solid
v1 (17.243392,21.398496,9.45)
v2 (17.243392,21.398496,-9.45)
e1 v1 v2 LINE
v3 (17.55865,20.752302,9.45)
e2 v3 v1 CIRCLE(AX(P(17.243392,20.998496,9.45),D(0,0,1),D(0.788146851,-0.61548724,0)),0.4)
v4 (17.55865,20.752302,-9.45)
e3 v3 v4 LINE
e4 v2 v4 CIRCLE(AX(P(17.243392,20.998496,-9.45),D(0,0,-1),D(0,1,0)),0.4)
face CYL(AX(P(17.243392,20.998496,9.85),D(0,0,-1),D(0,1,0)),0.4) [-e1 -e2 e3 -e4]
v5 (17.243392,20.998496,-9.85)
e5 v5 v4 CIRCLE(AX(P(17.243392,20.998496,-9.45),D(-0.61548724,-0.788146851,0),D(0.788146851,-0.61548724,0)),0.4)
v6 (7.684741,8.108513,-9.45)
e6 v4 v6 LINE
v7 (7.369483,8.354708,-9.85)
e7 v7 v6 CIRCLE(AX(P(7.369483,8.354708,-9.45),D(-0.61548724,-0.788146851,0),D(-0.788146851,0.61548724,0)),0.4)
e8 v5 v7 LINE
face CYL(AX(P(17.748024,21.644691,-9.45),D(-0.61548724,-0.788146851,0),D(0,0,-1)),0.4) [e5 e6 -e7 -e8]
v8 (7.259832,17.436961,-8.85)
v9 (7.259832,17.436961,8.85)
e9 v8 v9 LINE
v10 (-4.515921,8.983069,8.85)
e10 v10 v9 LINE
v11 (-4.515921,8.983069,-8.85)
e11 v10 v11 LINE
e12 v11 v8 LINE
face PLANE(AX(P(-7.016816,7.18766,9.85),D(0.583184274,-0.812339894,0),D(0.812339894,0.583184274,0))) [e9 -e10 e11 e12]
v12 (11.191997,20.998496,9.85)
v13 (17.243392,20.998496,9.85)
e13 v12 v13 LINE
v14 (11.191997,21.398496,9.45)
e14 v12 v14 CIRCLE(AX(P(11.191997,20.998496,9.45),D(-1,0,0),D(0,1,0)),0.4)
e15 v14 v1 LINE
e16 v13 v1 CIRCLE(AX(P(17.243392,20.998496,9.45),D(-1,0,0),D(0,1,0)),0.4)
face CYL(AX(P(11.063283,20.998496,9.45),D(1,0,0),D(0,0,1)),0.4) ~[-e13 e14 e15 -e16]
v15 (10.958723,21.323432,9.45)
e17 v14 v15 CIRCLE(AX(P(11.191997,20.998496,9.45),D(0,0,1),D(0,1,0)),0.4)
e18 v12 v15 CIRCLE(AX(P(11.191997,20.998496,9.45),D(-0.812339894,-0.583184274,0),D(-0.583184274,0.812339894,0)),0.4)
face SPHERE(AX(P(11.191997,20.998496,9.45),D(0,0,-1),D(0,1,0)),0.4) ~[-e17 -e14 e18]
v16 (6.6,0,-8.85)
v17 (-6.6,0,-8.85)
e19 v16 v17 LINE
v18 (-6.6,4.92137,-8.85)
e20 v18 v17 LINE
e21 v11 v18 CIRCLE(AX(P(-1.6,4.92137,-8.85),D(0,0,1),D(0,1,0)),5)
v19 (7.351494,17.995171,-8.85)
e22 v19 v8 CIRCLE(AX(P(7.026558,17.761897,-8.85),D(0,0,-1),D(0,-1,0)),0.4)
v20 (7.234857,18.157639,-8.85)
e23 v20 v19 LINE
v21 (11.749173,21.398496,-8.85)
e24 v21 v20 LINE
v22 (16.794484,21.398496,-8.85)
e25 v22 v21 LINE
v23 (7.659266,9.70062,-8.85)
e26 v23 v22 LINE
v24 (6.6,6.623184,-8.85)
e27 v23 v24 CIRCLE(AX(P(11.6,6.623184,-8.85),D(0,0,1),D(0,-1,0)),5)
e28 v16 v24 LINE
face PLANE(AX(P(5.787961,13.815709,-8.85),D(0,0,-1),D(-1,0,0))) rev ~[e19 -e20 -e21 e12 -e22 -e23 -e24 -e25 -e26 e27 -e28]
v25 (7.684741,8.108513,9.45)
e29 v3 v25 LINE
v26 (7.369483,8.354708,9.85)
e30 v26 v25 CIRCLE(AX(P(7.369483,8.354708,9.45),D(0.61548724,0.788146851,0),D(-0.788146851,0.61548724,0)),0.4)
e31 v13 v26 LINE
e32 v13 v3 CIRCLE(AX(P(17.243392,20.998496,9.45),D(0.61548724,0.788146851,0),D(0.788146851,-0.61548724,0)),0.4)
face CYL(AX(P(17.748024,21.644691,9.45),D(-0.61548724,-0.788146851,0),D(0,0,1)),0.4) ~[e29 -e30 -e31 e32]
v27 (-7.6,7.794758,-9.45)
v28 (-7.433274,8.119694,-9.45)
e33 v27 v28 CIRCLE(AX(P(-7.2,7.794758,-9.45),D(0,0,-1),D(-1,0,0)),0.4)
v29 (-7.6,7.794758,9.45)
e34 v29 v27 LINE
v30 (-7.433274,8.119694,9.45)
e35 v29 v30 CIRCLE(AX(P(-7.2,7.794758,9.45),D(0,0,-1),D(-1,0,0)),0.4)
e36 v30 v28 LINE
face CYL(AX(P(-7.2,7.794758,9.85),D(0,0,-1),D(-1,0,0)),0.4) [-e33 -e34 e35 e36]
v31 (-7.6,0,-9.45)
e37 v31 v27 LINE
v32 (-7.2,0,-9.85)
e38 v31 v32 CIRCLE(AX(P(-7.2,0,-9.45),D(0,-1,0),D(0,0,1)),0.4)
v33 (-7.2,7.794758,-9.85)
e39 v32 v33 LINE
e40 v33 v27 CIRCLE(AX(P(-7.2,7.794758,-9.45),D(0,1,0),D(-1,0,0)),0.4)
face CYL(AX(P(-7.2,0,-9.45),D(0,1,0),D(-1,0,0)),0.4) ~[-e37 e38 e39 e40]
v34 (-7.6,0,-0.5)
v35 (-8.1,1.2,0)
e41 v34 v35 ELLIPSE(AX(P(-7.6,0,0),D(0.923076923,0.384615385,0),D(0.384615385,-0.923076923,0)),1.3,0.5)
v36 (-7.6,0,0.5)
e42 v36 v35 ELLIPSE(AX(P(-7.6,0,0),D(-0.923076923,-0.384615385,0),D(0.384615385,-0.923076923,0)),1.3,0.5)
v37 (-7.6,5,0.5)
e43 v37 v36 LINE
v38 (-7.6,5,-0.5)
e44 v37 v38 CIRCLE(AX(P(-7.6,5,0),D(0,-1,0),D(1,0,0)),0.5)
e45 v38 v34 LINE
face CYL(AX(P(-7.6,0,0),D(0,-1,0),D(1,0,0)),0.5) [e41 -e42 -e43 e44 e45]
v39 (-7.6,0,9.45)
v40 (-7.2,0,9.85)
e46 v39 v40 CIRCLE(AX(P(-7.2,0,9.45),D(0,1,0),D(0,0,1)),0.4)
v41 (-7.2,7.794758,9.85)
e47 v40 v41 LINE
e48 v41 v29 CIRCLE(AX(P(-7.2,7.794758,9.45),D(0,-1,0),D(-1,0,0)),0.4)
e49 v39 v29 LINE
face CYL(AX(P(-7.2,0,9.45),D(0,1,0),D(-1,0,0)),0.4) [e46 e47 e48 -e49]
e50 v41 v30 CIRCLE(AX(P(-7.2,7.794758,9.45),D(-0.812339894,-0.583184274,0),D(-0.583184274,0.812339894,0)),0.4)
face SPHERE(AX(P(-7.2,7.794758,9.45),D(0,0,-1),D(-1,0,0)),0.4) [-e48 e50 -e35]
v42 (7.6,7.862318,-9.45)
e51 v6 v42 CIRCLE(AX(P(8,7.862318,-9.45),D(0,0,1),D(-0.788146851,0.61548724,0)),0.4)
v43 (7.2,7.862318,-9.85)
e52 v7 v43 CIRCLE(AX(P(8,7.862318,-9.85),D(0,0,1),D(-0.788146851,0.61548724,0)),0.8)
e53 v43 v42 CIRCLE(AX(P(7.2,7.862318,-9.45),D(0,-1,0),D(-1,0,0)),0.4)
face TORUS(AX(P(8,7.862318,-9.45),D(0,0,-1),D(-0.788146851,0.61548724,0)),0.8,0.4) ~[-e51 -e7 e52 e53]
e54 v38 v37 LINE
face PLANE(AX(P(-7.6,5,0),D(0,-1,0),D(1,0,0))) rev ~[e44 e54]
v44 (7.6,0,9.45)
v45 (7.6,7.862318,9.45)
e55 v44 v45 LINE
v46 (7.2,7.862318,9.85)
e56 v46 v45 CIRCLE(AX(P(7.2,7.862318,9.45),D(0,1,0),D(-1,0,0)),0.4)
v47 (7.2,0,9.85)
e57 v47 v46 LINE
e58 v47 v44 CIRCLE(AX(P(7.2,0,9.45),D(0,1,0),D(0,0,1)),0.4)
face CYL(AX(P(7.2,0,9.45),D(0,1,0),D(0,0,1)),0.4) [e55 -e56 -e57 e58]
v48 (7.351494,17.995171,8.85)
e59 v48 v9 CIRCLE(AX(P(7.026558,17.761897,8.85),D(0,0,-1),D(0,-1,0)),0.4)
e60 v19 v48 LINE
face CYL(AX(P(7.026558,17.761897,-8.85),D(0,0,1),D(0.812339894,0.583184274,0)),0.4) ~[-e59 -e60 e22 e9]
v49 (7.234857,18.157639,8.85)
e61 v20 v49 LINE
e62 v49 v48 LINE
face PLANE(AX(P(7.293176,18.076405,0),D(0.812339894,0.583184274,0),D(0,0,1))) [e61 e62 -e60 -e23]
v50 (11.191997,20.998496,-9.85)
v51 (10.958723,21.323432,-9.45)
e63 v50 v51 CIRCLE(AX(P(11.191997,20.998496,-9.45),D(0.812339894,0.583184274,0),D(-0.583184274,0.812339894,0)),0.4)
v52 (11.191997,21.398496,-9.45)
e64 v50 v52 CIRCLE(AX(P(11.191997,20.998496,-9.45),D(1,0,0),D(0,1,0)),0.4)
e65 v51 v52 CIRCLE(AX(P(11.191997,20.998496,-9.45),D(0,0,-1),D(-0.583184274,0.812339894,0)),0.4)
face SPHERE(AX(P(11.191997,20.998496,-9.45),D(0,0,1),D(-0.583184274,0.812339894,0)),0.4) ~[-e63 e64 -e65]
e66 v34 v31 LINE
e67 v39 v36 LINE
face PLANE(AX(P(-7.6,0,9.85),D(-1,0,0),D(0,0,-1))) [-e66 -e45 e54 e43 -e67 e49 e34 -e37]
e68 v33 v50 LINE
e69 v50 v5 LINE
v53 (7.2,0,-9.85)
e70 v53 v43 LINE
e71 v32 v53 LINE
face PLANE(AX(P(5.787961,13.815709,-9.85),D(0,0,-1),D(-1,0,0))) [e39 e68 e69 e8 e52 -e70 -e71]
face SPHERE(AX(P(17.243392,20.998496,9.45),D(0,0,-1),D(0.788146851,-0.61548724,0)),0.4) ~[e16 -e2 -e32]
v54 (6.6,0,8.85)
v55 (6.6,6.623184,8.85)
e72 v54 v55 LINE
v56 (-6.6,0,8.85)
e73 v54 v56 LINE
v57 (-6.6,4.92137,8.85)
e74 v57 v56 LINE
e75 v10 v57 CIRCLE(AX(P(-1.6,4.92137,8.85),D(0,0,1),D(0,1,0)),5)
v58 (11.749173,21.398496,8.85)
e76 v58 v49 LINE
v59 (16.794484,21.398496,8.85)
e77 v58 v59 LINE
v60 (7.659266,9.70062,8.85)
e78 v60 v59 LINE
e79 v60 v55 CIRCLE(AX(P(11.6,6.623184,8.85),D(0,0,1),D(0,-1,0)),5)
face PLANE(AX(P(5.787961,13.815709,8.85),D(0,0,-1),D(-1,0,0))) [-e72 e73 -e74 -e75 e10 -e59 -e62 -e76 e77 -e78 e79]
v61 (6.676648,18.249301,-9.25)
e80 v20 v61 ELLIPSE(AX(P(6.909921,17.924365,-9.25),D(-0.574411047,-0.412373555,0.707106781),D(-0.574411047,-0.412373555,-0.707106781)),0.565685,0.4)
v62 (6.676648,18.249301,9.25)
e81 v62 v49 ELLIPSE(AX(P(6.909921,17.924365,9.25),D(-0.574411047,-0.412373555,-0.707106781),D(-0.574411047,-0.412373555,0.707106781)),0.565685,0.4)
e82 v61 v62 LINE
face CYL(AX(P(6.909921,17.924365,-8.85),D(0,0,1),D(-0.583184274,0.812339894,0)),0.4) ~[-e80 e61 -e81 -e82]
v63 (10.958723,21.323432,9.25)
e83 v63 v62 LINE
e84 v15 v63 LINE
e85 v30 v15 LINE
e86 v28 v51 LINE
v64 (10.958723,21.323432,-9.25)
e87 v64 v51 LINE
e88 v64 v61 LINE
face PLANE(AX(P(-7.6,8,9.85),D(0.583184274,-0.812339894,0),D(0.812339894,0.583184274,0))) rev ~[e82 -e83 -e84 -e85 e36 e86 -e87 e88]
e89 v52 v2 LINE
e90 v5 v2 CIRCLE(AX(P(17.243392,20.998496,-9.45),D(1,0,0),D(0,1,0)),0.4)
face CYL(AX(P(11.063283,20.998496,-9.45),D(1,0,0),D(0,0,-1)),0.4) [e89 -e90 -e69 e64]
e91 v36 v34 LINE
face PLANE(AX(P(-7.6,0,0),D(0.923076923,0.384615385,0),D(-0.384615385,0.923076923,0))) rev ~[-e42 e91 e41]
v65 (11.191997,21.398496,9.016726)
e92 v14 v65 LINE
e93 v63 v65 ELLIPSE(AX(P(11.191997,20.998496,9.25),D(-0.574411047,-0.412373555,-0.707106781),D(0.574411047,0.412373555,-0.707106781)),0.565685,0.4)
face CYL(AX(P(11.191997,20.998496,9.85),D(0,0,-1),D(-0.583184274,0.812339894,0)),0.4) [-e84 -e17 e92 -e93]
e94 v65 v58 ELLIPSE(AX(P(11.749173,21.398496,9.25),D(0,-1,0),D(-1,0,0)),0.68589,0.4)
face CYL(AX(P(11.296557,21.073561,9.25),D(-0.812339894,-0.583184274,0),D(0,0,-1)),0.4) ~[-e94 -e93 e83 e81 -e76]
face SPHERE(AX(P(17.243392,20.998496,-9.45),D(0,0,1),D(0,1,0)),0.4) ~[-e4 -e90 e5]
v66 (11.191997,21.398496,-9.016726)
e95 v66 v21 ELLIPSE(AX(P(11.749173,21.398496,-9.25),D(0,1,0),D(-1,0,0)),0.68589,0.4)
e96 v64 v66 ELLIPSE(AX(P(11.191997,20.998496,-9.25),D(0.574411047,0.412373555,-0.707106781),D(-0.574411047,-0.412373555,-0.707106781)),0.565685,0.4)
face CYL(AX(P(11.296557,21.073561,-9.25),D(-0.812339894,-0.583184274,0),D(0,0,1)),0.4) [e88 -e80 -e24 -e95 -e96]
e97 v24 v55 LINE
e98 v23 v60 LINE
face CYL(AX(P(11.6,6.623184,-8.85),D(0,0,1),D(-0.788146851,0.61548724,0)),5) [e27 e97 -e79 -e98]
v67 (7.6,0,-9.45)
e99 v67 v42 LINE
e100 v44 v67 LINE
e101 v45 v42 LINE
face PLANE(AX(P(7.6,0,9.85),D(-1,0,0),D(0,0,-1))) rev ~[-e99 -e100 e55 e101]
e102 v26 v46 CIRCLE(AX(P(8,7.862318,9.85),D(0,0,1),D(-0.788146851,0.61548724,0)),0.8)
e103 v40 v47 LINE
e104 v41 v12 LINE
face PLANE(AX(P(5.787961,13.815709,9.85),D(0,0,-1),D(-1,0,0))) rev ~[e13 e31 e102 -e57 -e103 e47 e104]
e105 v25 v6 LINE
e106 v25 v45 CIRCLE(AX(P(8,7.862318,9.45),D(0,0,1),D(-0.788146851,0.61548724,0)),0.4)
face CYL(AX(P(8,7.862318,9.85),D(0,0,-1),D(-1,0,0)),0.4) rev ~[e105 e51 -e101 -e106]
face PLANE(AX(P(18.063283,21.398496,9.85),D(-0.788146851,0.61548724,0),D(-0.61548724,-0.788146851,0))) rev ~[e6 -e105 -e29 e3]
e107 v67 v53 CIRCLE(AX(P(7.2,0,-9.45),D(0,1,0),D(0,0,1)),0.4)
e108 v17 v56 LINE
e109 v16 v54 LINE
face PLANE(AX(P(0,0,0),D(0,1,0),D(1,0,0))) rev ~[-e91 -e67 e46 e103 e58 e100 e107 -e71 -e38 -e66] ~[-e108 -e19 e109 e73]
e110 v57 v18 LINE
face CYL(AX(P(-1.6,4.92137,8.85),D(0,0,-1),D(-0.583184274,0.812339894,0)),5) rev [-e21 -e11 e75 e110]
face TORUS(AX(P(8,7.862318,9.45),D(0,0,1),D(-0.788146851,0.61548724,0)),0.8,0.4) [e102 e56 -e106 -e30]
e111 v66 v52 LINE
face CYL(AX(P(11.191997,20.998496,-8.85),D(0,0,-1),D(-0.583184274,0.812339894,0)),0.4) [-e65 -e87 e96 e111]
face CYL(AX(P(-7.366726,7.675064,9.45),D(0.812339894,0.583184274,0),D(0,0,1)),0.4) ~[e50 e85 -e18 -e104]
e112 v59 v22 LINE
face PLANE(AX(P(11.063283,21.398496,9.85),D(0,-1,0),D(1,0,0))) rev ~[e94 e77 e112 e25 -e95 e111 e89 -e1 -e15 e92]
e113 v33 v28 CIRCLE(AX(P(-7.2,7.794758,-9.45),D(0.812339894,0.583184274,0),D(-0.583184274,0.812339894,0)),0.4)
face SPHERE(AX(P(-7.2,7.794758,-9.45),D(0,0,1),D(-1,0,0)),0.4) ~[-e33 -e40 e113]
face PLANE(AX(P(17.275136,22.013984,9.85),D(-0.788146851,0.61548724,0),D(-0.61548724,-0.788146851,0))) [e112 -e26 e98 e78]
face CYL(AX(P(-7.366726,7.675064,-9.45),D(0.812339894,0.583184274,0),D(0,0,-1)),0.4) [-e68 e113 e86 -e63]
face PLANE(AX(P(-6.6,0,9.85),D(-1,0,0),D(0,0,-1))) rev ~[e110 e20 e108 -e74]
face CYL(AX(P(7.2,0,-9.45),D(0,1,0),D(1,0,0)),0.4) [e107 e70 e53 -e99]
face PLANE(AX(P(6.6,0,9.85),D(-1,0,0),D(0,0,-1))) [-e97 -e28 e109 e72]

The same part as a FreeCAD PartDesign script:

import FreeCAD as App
import Part
import Sketcher
Q = App.Units.Quantity


def edges_at(feature, points):
    """Names of the edges that pass closest to the given points."""
    edges = feature.Shape.Edges
    near = lambda p: min(range(len(edges)), key=lambda i: edges[i].distToShape(Part.Vertex(*p))[0])
    return sorted({f"Edge{near(p) + 1}" for p in points})


def faces_at(feature, points):
    """Names of the faces that lie closest to the given points."""
    faces = feature.Shape.Faces
    near = lambda p: min(range(len(faces)), key=lambda i: faces[i].distToShape(Part.Vertex(*p))[0])
    return sorted({f"Face{near(p) + 1}" for p in points})


def add_polygon(sketch, points):
    """Adds a closed chain of lines whose ends are joined by coincident constraints."""
    first, n = sketch.GeometryCount, len(points)
    for a, b in zip(points, points[1:] + points[:1]):
        sketch.addGeometry(Part.LineSegment(App.Vector(*a, 0), App.Vector(*b, 0)), False)
    for i in range(n):
        sketch.addConstraint(Sketcher.Constraint("Coincident", first + i, 2, first + (i + 1) % n, 1))

doc = App.newDocument("Part")
body = doc.addObject("PartDesign::Body", "Body")

sketch1 = body.newObject("Sketcher::SketchObject", "Sketch")
sketch1.AttachmentSupport = (doc.getObject("XZ_Plane"), [""])
sketch1.MapMode = "FlatFace"
add_polygon(sketch1, [(-7.6, -9.85), (-7.6, 9.85), (7.6, 9.85), (7.6, -9.85)])
sketch1.addConstraint([
    Sketcher.Constraint("Vertical", 0),
    Sketcher.Constraint("Horizontal", 1),
    Sketcher.Constraint("Vertical", 2),
    Sketcher.Constraint("Horizontal", 3),
    Sketcher.Constraint("Symmetric", 0, 2, 2, 2, -1, 1),
    Sketcher.Constraint("DistanceX", 1, 1, 1, 2, Q("15.2 mm")),
    Sketcher.Constraint("DistanceY", 0, 1, 0, 2, Q("19.7 mm")),
])
pad1 = body.newObject("PartDesign::Pad", "Pad")
pad1.Profile = sketch1
pad1.Length = 8
pad1.Reversed = True

sketch2 = body.newObject("Sketcher::SketchObject", "Sketch001")
sketch2.AttachmentSupport = (doc.getObject("XY_Plane"), [""])
sketch2.MapMode = "FlatFace"
sketch2.AttachmentOffset = App.Placement(App.Vector(0, 0, 9.85), App.Rotation())
add_polygon(sketch2, [(11.063283, 21.398496), (-7.6, 8), (7.6, 8), (18.063283, 21.398496)])
sketch2.addConstraint([
    Sketcher.Constraint("Horizontal", 1),
    Sketcher.Constraint("Horizontal", 3),
    Sketcher.Constraint("DistanceX", 3, 2, 3, 1, Q("7 mm")),
    Sketcher.Constraint("Distance", 2, Q("17 mm")),
    Sketcher.Constraint("DistanceX", 1, 1, 1, 2, Q("15.2 mm")),
    Sketcher.Constraint("DistanceY", -1, 1, 0, 2, Q("8 mm")),
    Sketcher.Constraint("DistanceX", 0, 2, -1, 1, Q("7.6 mm")),
    Sketcher.Constraint("Distance", 0, Q("22.974722 mm")),
])
pad2 = body.newObject("PartDesign::Pad", "Pad001")
pad2.Profile = sketch2
pad2.Length = 19.7
pad2.Reversed = True
doc.recompute()

thickness = body.newObject("PartDesign::Thickness", "Thickness")
thickness.Base = (pad2, faces_at(pad2, [(14.563, 21.398, 0), (0, 0, 0)]))
thickness.Value = 1
thickness.Reversed = True
thickness.Join = "Intersection"

sketch3 = body.newObject("Sketcher::SketchObject", "Sketch002")
sketch3.AttachmentSupport = (doc.getObject("XZ_Plane"), [""])
sketch3.MapMode = "FlatFace"
sketch3.addGeometry(Part.Circle(App.Vector(-7.6, 0, 0), App.Vector(0, 0, 1), 0.5), False)
sketch3.addConstraint([
    Sketcher.Constraint("PointOnObject", 0, 3, -1),
    Sketcher.Constraint("Diameter", 0, Q("1 mm")),
    Sketcher.Constraint("DistanceX", 0, 3, -1, 1, Q("7.6 mm")),
])
pad3 = body.newObject("PartDesign::Pad", "Pad002")
pad3.Profile = sketch3
pad3.Length = 5
pad3.Reversed = True

sketch4 = body.newObject("Sketcher::SketchObject", "Sketch003")
sketch4.AttachmentSupport = (doc.getObject("XY_Plane"), [""])
sketch4.MapMode = "FlatFace"
add_polygon(sketch4, [(-7.6, 0), (-8.1, 1.2), (-8.1, 0)])
sketch4.addConstraint([
    Sketcher.Constraint("Vertical", 1),
    Sketcher.Constraint("Horizontal", 2),
    Sketcher.Constraint("PointOnObject", 1, 2, -1),
    Sketcher.Constraint("DistanceX", 2, 1, 2, 2, Q("0.5 mm")),
    Sketcher.Constraint("DistanceY", 1, 2, 1, 1, Q("1.2 mm")),
    Sketcher.Constraint("DistanceX", 0, 2, -1, 1, Q("8.1 mm")),
])
pocket1 = body.newObject("PartDesign::Pocket", "Pocket")
pocket1.Profile = sketch4
pocket1.Type = "ThroughAll"
pocket1.Midplane = True

sketch5 = body.newObject("Sketcher::SketchObject", "Sketch004")
sketch5.Placement = App.Placement(App.Vector(17.438023, 12.518874, 0), App.Rotation(App.Vector(0, 0, 1), App.Vector(0.583184274, -0.812339894, 0), App.Vector(0.812339894, 0.583184274, 0), "ZXY"))
add_polygon(sketch5, [(-8.85, -9.93092), (-8.85, -10.93092), (8.85, -10.93092), (8.85, -9.93092)])
sketch5.addConstraint([
    Sketcher.Constraint("Vertical", 0),
    Sketcher.Constraint("Horizontal", 1),
    Sketcher.Constraint("Vertical", 2),
    Sketcher.Constraint("Horizontal", 3),
    Sketcher.Constraint("DistanceY", 0, 2, 0, 1, Q("1 mm")),
    Sketcher.Constraint("DistanceX", 1, 1, 1, 2, Q("17.7 mm")),
    Sketcher.Constraint("DistanceX", 0, 2, -1, 1, Q("8.85 mm")),
    Sketcher.Constraint("DistanceY", 0, 2, -1, 1, Q("10.93092 mm")),
])
pocket2 = body.newObject("PartDesign::Pocket", "Pocket001")
pocket2.Profile = sketch5
pocket2.Type = "TwoLengths"
pocket2.Length = 6.686379
pocket2.Length2 = 5
pocket2.Reversed = True
doc.recompute()

fillet = body.newObject("PartDesign::Fillet", "Fillet")
fillet.Base = (pocket2, edges_at(pocket2, [
    (7.6, 8, 0),
    (11.063, 21.398, -9.35),
    (18.063, 21.398, 0),
    (12.832, 14.699, 9.85),
    (14.563, 21.398, 9.85),
    (1.732, 14.699, 9.85),
    (1.732, 14.699, -9.85),
    (14.563, 21.398, -9.85),
    (12.832, 14.699, -9.85),
    (-7.6, 8, 0),
    (11.063, 21.398, 9.35),
    (9.032, 19.941, -8.85),
    (7.002, 18.483, 0),
    (9.032, 19.941, 8.85),
    (-7.6, 4, -9.85),
    (7.6, 4, -9.85),
    (7.6, 4, 9.85),
    (-7.6, 4, 9.85),
]))
fillet.Radius = 0.4
doc.recompute()

fillet2 = body.newObject("PartDesign::Fillet", "Fillet001")
fillet2.Base = (fillet, edges_at(fillet, [(7.585, 17.67, 0)]))
fillet2.Radius = 0.4
doc.recompute()

fillet3 = body.newObject("PartDesign::Fillet", "Fillet002")
fillet3.Base = (fillet2, edges_at(fillet2, [(-6.6, 7.487, 0), (6.6, 8.344, 0)]))
fillet3.Radius = 5

doc.recompute()
